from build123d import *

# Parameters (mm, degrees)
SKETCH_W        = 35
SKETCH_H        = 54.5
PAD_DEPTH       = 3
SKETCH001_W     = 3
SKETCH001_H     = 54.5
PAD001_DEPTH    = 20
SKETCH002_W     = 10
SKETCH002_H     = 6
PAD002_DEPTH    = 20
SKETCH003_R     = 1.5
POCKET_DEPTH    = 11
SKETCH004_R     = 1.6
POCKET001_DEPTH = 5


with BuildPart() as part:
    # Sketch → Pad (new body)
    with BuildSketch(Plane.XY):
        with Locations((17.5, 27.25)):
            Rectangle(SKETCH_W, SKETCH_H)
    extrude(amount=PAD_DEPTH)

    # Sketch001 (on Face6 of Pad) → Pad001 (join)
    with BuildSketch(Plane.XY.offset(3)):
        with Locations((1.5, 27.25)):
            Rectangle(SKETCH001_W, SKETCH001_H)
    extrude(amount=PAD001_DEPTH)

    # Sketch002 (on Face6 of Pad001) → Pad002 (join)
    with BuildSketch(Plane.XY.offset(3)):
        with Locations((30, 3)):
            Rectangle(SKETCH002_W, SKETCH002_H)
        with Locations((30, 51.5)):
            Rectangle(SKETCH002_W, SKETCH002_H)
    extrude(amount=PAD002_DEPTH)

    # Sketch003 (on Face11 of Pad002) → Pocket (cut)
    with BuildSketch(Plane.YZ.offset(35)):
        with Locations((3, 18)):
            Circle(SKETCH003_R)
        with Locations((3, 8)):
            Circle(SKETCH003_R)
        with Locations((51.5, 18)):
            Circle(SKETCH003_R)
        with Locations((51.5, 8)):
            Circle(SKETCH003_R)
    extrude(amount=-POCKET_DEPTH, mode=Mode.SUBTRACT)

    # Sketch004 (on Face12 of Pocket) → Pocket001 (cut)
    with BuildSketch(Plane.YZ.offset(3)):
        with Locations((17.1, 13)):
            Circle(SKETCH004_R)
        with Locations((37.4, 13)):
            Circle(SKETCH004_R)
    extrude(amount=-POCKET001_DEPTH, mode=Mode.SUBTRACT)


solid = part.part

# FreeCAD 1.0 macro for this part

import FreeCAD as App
import Part
import Sketcher
from FreeCAD import Vector
Q = App.Units.Quantity

doc = App.newDocument("Part")
body = doc.addObject("PartDesign::Body", "Body")

sketch1 = doc.addObject("Sketcher::SketchObject", "Sketch")
body.addObject(sketch1)
sketch1.AttachmentSupport = (doc.XY_Plane, [""])
sketch1.MapMode = "FlatFace"
sketch1.addGeometry(Part.LineSegment(Vector(0, 54.5, 0), Vector(0, 0, 0)), False)
sketch1.addGeometry(Part.LineSegment(Vector(0, 0, 0), Vector(35, 0, 0)), False)
sketch1.addGeometry(Part.LineSegment(Vector(35, 0, 0), Vector(35, 54.5, 0)), False)
sketch1.addGeometry(Part.LineSegment(Vector(35, 54.5, 0), Vector(0, 54.5, 0)), False)
sketch1.addConstraint(Sketcher.Constraint("Coincident", 0, 2, 1, 1))
sketch1.addConstraint(Sketcher.Constraint("Coincident", 1, 2, 2, 1))
sketch1.addConstraint(Sketcher.Constraint("Coincident", 2, 2, 3, 1))
sketch1.addConstraint(Sketcher.Constraint("Coincident", 3, 2, 0, 1))
sketch1.addConstraint(Sketcher.Constraint("Vertical", 0))
sketch1.addConstraint(Sketcher.Constraint("Horizontal", 1))
sketch1.addConstraint(Sketcher.Constraint("Vertical", 2))
sketch1.addConstraint(Sketcher.Constraint("Horizontal", 3))
sketch1.addConstraint(Sketcher.Constraint("Coincident", 0, 2, -1, 1))
sketch1.addConstraint(Sketcher.Constraint("DistanceX", 1, 1, 1, 2, Q("35 mm")))
sketch1.addConstraint(Sketcher.Constraint("DistanceY", 0, 2, 0, 1, Q("54.5 mm")))
pad1 = doc.addObject("PartDesign::Pad", "Pad")
body.addObject(pad1)
pad1.Profile = sketch1
pad1.Length = 3

sketch2 = doc.addObject("Sketcher::SketchObject", "Sketch001")
body.addObject(sketch2)
sketch2.AttachmentSupport = (doc.XY_Plane, [""])
sketch2.MapMode = "FlatFace"
sketch2.AttachmentOffset = App.Placement(Vector(0, 0, 3), App.Rotation())
sketch2.addGeometry(Part.LineSegment(Vector(0, 54.5, 0), Vector(0, 0, 0)), False)
sketch2.addGeometry(Part.LineSegment(Vector(0, 0, 0), Vector(3, 0, 0)), False)
sketch2.addGeometry(Part.LineSegment(Vector(3, 0, 0), Vector(3, 54.5, 0)), False)
sketch2.addGeometry(Part.LineSegment(Vector(3, 54.5, 0), Vector(0, 54.5, 0)), False)
sketch2.addConstraint(Sketcher.Constraint("Coincident", 0, 2, 1, 1))
sketch2.addConstraint(Sketcher.Constraint("Coincident", 1, 2, 2, 1))
sketch2.addConstraint(Sketcher.Constraint("Coincident", 2, 2, 3, 1))
sketch2.addConstraint(Sketcher.Constraint("Coincident", 3, 2, 0, 1))
sketch2.addConstraint(Sketcher.Constraint("Vertical", 0))
sketch2.addConstraint(Sketcher.Constraint("Horizontal", 1))
sketch2.addConstraint(Sketcher.Constraint("Vertical", 2))
sketch2.addConstraint(Sketcher.Constraint("Horizontal", 3))
sketch2.addConstraint(Sketcher.Constraint("Coincident", 0, 2, -1, 1))
sketch2.addConstraint(Sketcher.Constraint("DistanceX", 1, 1, 1, 2, Q("3 mm")))
sketch2.addConstraint(Sketcher.Constraint("DistanceY", 0, 2, 0, 1, Q("54.5 mm")))
pad2 = doc.addObject("PartDesign::Pad", "Pad001")
body.addObject(pad2)
pad2.Profile = sketch2
pad2.Length = 20

sketch3 = doc.addObject("Sketcher::SketchObject", "Sketch002")
body.addObject(sketch3)
sketch3.AttachmentSupport = (doc.XY_Plane, [""])
sketch3.MapMode = "FlatFace"
sketch3.AttachmentOffset = App.Placement(Vector(0, 0, 3), App.Rotation())
sketch3.addGeometry(Part.LineSegment(Vector(25, 6, 0), Vector(25, 0, 0)), False)
sketch3.addGeometry(Part.LineSegment(Vector(25, 0, 0), Vector(35, 0, 0)), False)
sketch3.addGeometry(Part.LineSegment(Vector(35, 0, 0), Vector(35, 6, 0)), False)
sketch3.addGeometry(Part.LineSegment(Vector(35, 6, 0), Vector(25, 6, 0)), False)
sketch3.addGeometry(Part.LineSegment(Vector(25, 54.5, 0), Vector(25, 48.5, 0)), False)
sketch3.addGeometry(Part.LineSegment(Vector(25, 48.5, 0), Vector(35, 48.5, 0)), False)
sketch3.addGeometry(Part.LineSegment(Vector(35, 48.5, 0), Vector(35, 54.5, 0)), False)
sketch3.addGeometry(Part.LineSegment(Vector(35, 54.5, 0), Vector(25, 54.5, 0)), False)
sketch3.addConstraint(Sketcher.Constraint("Coincident", 0, 2, 1, 1))
sketch3.addConstraint(Sketcher.Constraint("Coincident", 1, 2, 2, 1))
sketch3.addConstraint(Sketcher.Constraint("Coincident", 2, 2, 3, 1))
sketch3.addConstraint(Sketcher.Constraint("Coincident", 3, 2, 0, 1))
sketch3.addConstraint(Sketcher.Constraint("Coincident", 4, 2, 5, 1))
sketch3.addConstraint(Sketcher.Constraint("Coincident", 5, 2, 6, 1))
sketch3.addConstraint(Sketcher.Constraint("Coincident", 6, 2, 7, 1))
sketch3.addConstraint(Sketcher.Constraint("Coincident", 7, 2, 4, 1))
sketch3.addConstraint(Sketcher.Constraint("Vertical", 0))
sketch3.addConstraint(Sketcher.Constraint("Horizontal", 1))
sketch3.addConstraint(Sketcher.Constraint("Vertical", 2))
sketch3.addConstraint(Sketcher.Constraint("Horizontal", 3))
sketch3.addConstraint(Sketcher.Constraint("Vertical", 4))
sketch3.addConstraint(Sketcher.Constraint("Horizontal", 5))
sketch3.addConstraint(Sketcher.Constraint("Vertical", 6))
sketch3.addConstraint(Sketcher.Constraint("Horizontal", 7))
sketch3.addConstraint(Sketcher.Constraint("PointOnObject", 0, 2, -1))
sketch3.addConstraint(Sketcher.Constraint("Vertical", 3, 2, 4, 2))
sketch3.addConstraint(Sketcher.Constraint("Vertical", 2, 2, 5, 2))
sketch3.addConstraint(Sketcher.Constraint("Equal", 2, 4))
sketch3.addConstraint(Sketcher.Constraint("DistanceX", 1, 1, 1, 2, Q("10 mm")))
sketch3.addConstraint(Sketcher.Constraint("DistanceY", 0, 2, 0, 1, Q("6 mm")))
sketch3.addConstraint(Sketcher.Constraint("DistanceX", -1, 1, 0, 2, Q("25 mm")))
sketch3.addConstraint(Sketcher.Constraint("DistanceY", -1, 1, 4, 2, Q("48.5 mm")))
pad3 = doc.addObject("PartDesign::Pad", "Pad002")
body.addObject(pad3)
pad3.Profile = sketch3
pad3.Length = 20

sketch4 = doc.addObject("Sketcher::SketchObject", "Sketch003")
body.addObject(sketch4)
sketch4.AttachmentSupport = (doc.YZ_Plane, [""])
sketch4.MapMode = "FlatFace"
sketch4.AttachmentOffset = App.Placement(Vector(0, 0, 35), App.Rotation())
sketch4.addGeometry(Part.Circle(Vector(3, 18, 0), Vector(0, 0, 1), 1.5), False)
sketch4.addGeometry(Part.Circle(Vector(3, 8, 0), Vector(0, 0, 1), 1.5), False)
sketch4.addGeometry(Part.Circle(Vector(51.5, 18, 0), Vector(0, 0, 1), 1.5), False)
sketch4.addGeometry(Part.Circle(Vector(51.5, 8, 0), Vector(0, 0, 1), 1.5), False)
sketch4.addConstraint(Sketcher.Constraint("Equal", 0, 1))
sketch4.addConstraint(Sketcher.Constraint("Equal", 1, 2))
sketch4.addConstraint(Sketcher.Constraint("Equal", 2, 3))
sketch4.addConstraint(Sketcher.Constraint("Horizontal", 0, 3, 2, 3))
sketch4.addConstraint(Sketcher.Constraint("Horizontal", 1, 3, 3, 3))
sketch4.addConstraint(Sketcher.Constraint("Vertical", 0, 3, 1, 3))
sketch4.addConstraint(Sketcher.Constraint("Vertical", 2, 3, 3, 3))
sketch4.addConstraint(Sketcher.Constraint("Diameter", 0, Q("3 mm")))
sketch4.addConstraint(Sketcher.Constraint("DistanceX", -1, 1, 0, 3, Q("3 mm")))
sketch4.addConstraint(Sketcher.Constraint("DistanceY", -1, 1, 0, 3, Q("18 mm")))
sketch4.addConstraint(Sketcher.Constraint("DistanceY", -1, 1, 1, 3, Q("8 mm")))
sketch4.addConstraint(Sketcher.Constraint("DistanceX", -1, 1, 2, 3, Q("51.5 mm")))
pocket1 = doc.addObject("PartDesign::Pocket", "Pocket")
body.addObject(pocket1)
pocket1.Profile = sketch4
pocket1.Length = 11

sketch5 = doc.addObject("Sketcher::SketchObject", "Sketch004")
body.addObject(sketch5)
sketch5.AttachmentSupport = (doc.YZ_Plane, [""])
sketch5.MapMode = "FlatFace"
sketch5.AttachmentOffset = App.Placement(Vector(0, 0, 3), App.Rotation())
sketch5.addGeometry(Part.Circle(Vector(17.1, 13, 0), Vector(0, 0, 1), 1.6), False)
sketch5.addGeometry(Part.Circle(Vector(37.4, 13, 0), Vector(0, 0, 1), 1.6), False)
sketch5.addConstraint(Sketcher.Constraint("Equal", 0, 1))
sketch5.addConstraint(Sketcher.Constraint("Horizontal", 0, 3, 1, 3))
sketch5.addConstraint(Sketcher.Constraint("Diameter", 0, Q("3.2 mm")))
sketch5.addConstraint(Sketcher.Constraint("DistanceY", -1, 1, 0, 3, Q("13 mm")))
sketch5.addConstraint(Sketcher.Constraint("DistanceX", -1, 1, 0, 3, Q("17.1 mm")))
sketch5.addConstraint(Sketcher.Constraint("DistanceX", -1, 1, 1, 3, Q("37.4 mm")))
pocket2 = doc.addObject("PartDesign::Pocket", "Pocket001")
body.addObject(pocket2)
pocket2.Profile = sketch5
pocket2.Length = 5

doc.recompute()
